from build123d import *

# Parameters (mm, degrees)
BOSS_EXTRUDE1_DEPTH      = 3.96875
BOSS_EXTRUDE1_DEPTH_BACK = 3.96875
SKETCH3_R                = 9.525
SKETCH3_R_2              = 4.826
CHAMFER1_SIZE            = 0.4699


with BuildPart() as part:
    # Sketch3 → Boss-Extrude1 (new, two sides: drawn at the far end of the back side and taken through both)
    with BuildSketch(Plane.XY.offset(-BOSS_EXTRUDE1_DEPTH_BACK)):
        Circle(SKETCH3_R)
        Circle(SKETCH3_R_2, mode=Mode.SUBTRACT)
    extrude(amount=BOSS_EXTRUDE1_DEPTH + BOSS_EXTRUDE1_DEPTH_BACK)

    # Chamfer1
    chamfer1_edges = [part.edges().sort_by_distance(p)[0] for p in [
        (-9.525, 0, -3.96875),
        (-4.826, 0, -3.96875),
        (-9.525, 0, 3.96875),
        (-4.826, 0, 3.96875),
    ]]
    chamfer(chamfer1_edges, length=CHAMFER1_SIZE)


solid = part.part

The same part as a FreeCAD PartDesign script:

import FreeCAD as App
import Part
import Sketcher

V = App.Vector
Q = App.Units.Quantity


def edges_at(feature, points):
    """Names of the edges that pass closest to the given points."""
    edges = feature.Shape.Edges
    near = lambda p: min(range(len(edges)), key=lambda i: edges[i].distToShape(Part.Vertex(*p))[0])
    return sorted({f"Edge{near(p) + 1}" for p in points})

doc = App.newDocument("Part")
body = doc.addObject("PartDesign::Body", "Body")

# Sketch on XY plane
sketch1 = body.newObject("Sketcher::SketchObject", "Sketch")
sketch1.AttachmentSupport = (doc.getObject("XY_Plane"), [""])
sketch1.MapMode = "FlatFace"
sketch1.addGeometry([
    Part.Circle(V(0, 0, 0), V(0, 0, 1), 9.525),
    Part.Circle(V(0, 0, 0), V(0, 0, 1), 4.826),
], False)
sketch1.addConstraint([
    Sketcher.Constraint("Coincident", 0, 3, -1, 1),
    Sketcher.Constraint("Coincident", 1, 3, -1, 1),
    Sketcher.Constraint("Diameter", 0, Q("0.75 in")),
    Sketcher.Constraint("Diameter", 1, Q("0.38 in")),
])
pad1 = body.newObject("PartDesign::Pad", "Pad")
pad1.Profile = sketch1
pad1.Type = "TwoLengths"
pad1.Length = Q("0.15625 in")
pad1.Length2 = Q("0.15625 in")
doc.recompute()

chamfer = body.newObject("PartDesign::Chamfer", "Chamfer")
chamfer.Base = (pad1, edges_at(pad1, [
    (-9.525, 0, -3.969),
    (-4.826, 0, -3.969),
    (-9.525, 0, 3.969),
    (-4.826, 0, 3.969),
]))
chamfer.Size = Q("0.0185 in")

doc.recompute()
